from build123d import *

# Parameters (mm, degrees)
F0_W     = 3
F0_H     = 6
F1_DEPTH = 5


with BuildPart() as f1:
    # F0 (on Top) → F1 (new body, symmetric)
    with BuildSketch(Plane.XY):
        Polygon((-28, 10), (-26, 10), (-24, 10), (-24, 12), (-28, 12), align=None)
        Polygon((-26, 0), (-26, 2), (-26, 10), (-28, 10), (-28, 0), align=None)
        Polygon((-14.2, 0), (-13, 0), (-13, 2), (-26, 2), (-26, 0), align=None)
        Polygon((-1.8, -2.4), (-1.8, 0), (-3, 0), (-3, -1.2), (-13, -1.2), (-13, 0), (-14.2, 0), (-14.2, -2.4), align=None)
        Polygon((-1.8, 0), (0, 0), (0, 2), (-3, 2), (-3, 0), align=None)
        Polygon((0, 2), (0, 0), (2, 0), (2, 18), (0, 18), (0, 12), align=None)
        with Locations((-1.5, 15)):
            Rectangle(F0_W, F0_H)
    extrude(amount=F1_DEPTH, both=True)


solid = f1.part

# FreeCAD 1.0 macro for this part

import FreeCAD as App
import Part
import Sketcher
from FreeCAD import Vector
Q = App.Units.Quantity

doc = App.newDocument("Part")
body = doc.addObject("PartDesign::Body", "Body")

# Sketch on XY plane
sketch1 = doc.addObject("Sketcher::SketchObject", "Sketch")
body.addObject(sketch1)
sketch1.AttachmentSupport = (doc.XY_Plane, [""])
sketch1.MapMode = "FlatFace"
sketch1.addGeometry([
    Part.LineSegment(Vector(-26, 10, 0), Vector(-24, 10, 0)),  # 0
    Part.LineSegment(Vector(-24, 10, 0), Vector(-24, 12, 0)),  # 1
    Part.LineSegment(Vector(-24, 12, 0), Vector(-28, 12, 0)),  # 2
    Part.LineSegment(Vector(-28, 12, 0), Vector(-28, 0, 0)),  # 3
    Part.LineSegment(Vector(-28, 0, 0), Vector(-14.2, 0, 0)),  # 4
    Part.LineSegment(Vector(-14.2, 0, 0), Vector(-14.2, -2.4, 0)),  # 5
    Part.LineSegment(Vector(-14.2, -2.4, 0), Vector(-1.8, -2.4, 0)),  # 6
    Part.LineSegment(Vector(-1.8, -2.4, 0), Vector(-1.8, 0, 0)),  # 7
    Part.LineSegment(Vector(-1.8, 0, 0), Vector(2, 0, 0)),  # 8
    Part.LineSegment(Vector(2, 0, 0), Vector(2, 18, 0)),  # 9
    Part.LineSegment(Vector(2, 18, 0), Vector(-3, 18, 0)),  # 10
    Part.LineSegment(Vector(-3, 18, 0), Vector(-3, 12, 0)),  # 11
    Part.LineSegment(Vector(-3, 12, 0), Vector(0, 12, 0)),  # 12
    Part.LineSegment(Vector(0, 12, 0), Vector(0, 2, 0)),  # 13
    Part.LineSegment(Vector(0, 2, 0), Vector(-3, 2, 0)),  # 14
    Part.LineSegment(Vector(-3, 2, 0), Vector(-3, -1.2, 0)),  # 15
    Part.LineSegment(Vector(-3, -1.2, 0), Vector(-13, -1.2, 0)),  # 16
    Part.LineSegment(Vector(-13, -1.2, 0), Vector(-13, 2, 0)),  # 17
    Part.LineSegment(Vector(-13, 2, 0), Vector(-26, 2, 0)),  # 18
    Part.LineSegment(Vector(-26, 2, 0), Vector(-26, 10, 0)),  # 19
], False)
sketch1.addConstraint([
    Sketcher.Constraint("Coincident", 0, 2, 1, 1),
    Sketcher.Constraint("Coincident", 1, 2, 2, 1),
    Sketcher.Constraint("Coincident", 2, 2, 3, 1),
    Sketcher.Constraint("Coincident", 3, 2, 4, 1),
    Sketcher.Constraint("Coincident", 4, 2, 5, 1),
    Sketcher.Constraint("Coincident", 5, 2, 6, 1),
    Sketcher.Constraint("Coincident", 6, 2, 7, 1),
    Sketcher.Constraint("Coincident", 7, 2, 8, 1),
    Sketcher.Constraint("Coincident", 8, 2, 9, 1),
    Sketcher.Constraint("Coincident", 9, 2, 10, 1),
    Sketcher.Constraint("Coincident", 10, 2, 11, 1),
    Sketcher.Constraint("Coincident", 11, 2, 12, 1),
    Sketcher.Constraint("Coincident", 12, 2, 13, 1),
    Sketcher.Constraint("Coincident", 13, 2, 14, 1),
    Sketcher.Constraint("Coincident", 14, 2, 15, 1),
    Sketcher.Constraint("Coincident", 15, 2, 16, 1),
    Sketcher.Constraint("Coincident", 16, 2, 17, 1),
    Sketcher.Constraint("Coincident", 17, 2, 18, 1),
    Sketcher.Constraint("Coincident", 18, 2, 19, 1),
    Sketcher.Constraint("Coincident", 19, 2, 0, 1),
    Sketcher.Constraint("Horizontal", 0),
    Sketcher.Constraint("Vertical", 1),
    Sketcher.Constraint("Horizontal", 2),
    Sketcher.Constraint("Vertical", 3),
    Sketcher.Constraint("Horizontal", 4),
    Sketcher.Constraint("Vertical", 5),
    Sketcher.Constraint("Horizontal", 6),
    Sketcher.Constraint("Vertical", 7),
    Sketcher.Constraint("Horizontal", 8),
    Sketcher.Constraint("Vertical", 9),
    Sketcher.Constraint("Horizontal", 10),
    Sketcher.Constraint("Vertical", 11),
    Sketcher.Constraint("Horizontal", 12),
    Sketcher.Constraint("Vertical", 13),
    Sketcher.Constraint("Horizontal", 14),
    Sketcher.Constraint("Vertical", 15),
    Sketcher.Constraint("Horizontal", 16),
    Sketcher.Constraint("Vertical", 17),
    Sketcher.Constraint("Horizontal", 18),
    Sketcher.Constraint("Vertical", 19),
    Sketcher.Constraint("PointOnObject", 3, 2, -1),
    Sketcher.Constraint("PointOnObject", 7, 2, -1),
    Sketcher.Constraint("PointOnObject", 12, 2, -2),
    Sketcher.Constraint("Horizontal", 2, 2, 11, 2),
    Sketcher.Constraint("Horizontal", 14, 2, 17, 2),
    Sketcher.Constraint("Vertical", 11, 2, 14, 2),
    Sketcher.Constraint("Equal", 0, 1),
    Sketcher.Constraint("Equal", 16, 13),
    Sketcher.Constraint("DistanceX", 0, 1, 0, 2, Q("2 mm")),
    Sketcher.Constraint("DistanceX", 2, 2, 2, 1, Q("4 mm")),
    Sketcher.Constraint("DistanceX", 10, 2, 10, 1, Q("5 mm")),
    Sketcher.Constraint("DistanceX", 12, 1, 12, 2, Q("3 mm")),
    Sketcher.Constraint("DistanceX", 16, 2, 16, 1, Q("10 mm")),
    Sketcher.Constraint("DistanceX", 18, 2, 18, 1, Q("13 mm")),
    Sketcher.Constraint("DistanceY", 3, 2, 3, 1, Q("12 mm")),
    Sketcher.Constraint("DistanceY", 9, 1, 9, 2, Q("18 mm")),
    Sketcher.Constraint("DistanceX", 4, 1, 4, 2, Q("13.8 mm")),
    Sketcher.Constraint("DistanceX", 6, 1, 6, 2, Q("12.4 mm")),
    Sketcher.Constraint("DistanceY", 5, 2, 5, 1, Q("2.4 mm")),
    Sketcher.Constraint("DistanceY", 15, 2, 15, 1, Q("3.2 mm")),
])
pad1 = doc.addObject("PartDesign::Pad", "Pad")
body.addObject(pad1)
pad1.Profile = sketch1
pad1.Length = 10
pad1.Midplane = True

doc.recompute()
